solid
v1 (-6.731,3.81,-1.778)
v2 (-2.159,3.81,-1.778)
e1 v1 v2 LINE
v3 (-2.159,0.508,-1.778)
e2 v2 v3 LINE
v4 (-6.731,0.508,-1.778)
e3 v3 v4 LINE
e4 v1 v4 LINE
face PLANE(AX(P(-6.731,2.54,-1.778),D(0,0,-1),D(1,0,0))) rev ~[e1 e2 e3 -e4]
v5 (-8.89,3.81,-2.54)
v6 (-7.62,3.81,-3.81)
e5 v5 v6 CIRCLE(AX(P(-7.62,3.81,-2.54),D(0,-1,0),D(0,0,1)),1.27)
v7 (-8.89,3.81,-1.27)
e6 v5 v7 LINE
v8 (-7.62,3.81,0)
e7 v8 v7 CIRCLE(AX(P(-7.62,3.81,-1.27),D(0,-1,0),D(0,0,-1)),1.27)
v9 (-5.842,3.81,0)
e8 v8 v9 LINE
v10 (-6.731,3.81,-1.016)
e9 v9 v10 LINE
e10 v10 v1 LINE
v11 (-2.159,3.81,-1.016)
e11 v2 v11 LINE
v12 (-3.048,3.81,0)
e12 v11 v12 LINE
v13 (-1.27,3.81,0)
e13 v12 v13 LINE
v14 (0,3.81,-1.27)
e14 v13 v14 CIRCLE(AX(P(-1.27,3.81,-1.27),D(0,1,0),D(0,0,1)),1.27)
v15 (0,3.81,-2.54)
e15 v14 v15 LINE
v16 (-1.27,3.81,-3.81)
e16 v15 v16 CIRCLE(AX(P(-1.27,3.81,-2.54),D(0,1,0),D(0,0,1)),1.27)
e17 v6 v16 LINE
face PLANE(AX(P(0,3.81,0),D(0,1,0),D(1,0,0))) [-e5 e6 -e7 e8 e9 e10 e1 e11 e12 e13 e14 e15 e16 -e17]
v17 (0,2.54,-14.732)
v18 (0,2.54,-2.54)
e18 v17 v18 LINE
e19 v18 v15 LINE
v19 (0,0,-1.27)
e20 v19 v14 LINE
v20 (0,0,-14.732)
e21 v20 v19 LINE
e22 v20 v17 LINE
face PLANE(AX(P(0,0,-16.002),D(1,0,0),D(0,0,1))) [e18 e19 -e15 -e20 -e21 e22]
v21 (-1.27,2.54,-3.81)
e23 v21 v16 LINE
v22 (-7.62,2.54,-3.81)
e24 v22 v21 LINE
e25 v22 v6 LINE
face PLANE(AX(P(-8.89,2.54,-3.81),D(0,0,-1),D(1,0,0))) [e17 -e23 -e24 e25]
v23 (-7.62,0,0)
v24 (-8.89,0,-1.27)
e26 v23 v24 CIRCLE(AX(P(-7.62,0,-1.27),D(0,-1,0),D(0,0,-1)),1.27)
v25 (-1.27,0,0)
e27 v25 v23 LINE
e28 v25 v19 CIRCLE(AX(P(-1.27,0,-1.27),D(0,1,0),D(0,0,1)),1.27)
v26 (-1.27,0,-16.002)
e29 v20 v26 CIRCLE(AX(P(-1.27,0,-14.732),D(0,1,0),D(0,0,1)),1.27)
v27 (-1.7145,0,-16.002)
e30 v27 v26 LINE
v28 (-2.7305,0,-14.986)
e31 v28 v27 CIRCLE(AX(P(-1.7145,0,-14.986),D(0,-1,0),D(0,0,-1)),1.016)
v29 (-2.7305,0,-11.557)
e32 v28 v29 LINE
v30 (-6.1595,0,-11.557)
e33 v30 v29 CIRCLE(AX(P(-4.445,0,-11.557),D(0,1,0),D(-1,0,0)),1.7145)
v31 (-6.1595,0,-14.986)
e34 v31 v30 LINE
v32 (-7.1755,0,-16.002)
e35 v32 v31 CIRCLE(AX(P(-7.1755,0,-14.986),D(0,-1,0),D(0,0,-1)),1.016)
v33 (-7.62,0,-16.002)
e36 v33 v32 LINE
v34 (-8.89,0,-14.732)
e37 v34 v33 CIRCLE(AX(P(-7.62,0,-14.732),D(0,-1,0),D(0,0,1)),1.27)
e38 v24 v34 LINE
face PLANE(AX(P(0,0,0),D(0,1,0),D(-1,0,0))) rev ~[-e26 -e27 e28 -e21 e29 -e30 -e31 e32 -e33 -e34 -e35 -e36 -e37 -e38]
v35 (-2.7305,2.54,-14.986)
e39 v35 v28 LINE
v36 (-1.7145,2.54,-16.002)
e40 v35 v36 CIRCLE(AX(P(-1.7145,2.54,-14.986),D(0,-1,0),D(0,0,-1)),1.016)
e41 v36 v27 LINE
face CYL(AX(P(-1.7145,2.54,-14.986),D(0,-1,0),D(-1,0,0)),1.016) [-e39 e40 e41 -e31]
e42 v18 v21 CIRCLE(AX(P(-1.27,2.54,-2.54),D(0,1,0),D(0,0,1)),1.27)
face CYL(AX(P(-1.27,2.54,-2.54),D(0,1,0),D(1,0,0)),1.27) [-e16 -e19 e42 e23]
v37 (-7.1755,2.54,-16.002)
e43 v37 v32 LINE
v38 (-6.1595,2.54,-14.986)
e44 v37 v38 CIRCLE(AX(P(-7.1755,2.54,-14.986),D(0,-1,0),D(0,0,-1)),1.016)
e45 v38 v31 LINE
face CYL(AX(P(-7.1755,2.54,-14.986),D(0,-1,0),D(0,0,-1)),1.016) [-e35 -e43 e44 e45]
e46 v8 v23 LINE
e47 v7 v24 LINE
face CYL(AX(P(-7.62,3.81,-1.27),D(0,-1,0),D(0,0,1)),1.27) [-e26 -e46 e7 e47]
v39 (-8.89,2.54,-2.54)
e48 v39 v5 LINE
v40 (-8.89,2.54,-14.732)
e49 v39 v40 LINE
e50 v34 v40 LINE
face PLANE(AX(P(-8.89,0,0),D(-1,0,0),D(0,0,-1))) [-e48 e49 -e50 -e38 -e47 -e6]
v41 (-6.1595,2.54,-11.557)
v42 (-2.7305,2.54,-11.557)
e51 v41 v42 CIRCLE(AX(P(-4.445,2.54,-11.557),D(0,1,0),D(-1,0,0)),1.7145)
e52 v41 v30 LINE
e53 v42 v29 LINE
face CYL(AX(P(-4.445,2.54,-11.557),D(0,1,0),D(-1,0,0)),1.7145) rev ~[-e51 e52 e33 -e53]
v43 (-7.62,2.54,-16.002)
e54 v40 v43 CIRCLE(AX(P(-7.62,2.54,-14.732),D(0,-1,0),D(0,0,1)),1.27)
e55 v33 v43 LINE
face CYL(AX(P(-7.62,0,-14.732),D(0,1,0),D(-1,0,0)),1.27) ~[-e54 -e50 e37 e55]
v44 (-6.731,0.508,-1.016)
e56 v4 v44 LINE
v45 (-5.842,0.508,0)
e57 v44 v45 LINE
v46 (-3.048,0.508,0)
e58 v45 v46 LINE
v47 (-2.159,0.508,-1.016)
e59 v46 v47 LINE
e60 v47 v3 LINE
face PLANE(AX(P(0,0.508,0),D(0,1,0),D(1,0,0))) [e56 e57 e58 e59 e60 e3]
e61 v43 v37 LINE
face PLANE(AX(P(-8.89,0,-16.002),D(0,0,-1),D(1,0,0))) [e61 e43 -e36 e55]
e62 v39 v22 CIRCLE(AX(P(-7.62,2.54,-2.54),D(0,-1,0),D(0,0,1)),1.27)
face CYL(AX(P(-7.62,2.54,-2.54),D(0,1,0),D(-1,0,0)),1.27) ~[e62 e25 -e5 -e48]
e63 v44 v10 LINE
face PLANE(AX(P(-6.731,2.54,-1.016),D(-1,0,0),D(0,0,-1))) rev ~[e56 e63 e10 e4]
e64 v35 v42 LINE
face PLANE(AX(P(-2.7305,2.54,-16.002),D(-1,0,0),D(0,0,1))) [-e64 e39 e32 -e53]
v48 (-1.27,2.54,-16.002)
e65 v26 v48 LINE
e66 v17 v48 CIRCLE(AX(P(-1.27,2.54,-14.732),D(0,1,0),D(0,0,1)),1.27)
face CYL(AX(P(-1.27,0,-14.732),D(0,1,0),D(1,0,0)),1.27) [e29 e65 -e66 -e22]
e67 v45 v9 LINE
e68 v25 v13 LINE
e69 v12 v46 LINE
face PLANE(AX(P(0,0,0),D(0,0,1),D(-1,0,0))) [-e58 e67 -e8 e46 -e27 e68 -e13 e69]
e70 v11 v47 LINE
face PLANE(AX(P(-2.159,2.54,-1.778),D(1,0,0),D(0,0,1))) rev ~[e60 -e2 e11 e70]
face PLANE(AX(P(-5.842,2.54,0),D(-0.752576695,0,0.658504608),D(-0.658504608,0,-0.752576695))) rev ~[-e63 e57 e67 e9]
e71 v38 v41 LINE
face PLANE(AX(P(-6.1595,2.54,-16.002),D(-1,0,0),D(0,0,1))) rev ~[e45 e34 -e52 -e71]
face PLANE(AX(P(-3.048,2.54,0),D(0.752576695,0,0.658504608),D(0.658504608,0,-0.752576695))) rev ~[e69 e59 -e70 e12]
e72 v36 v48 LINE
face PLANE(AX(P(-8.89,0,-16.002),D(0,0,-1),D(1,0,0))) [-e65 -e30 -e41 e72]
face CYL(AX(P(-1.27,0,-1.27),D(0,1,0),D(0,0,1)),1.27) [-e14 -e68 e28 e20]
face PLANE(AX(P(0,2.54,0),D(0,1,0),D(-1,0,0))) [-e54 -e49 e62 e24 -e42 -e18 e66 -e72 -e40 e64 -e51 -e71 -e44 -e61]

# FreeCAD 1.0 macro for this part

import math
import FreeCAD as App
import Part
import Sketcher
from FreeCAD import Vector
Q = App.Units.Quantity


def edges_at(feature, points):
    """Names of the edges that pass closest to the given points."""
    edges = feature.Shape.Edges
    near = lambda p: min(range(len(edges)), key=lambda i: edges[i].distToShape(Part.Vertex(*p))[0])
    return sorted({f"Edge{near(p) + 1}" for p in points})

doc = App.newDocument("Part")
body = doc.addObject("PartDesign::Body", "Body")

# Sketch on XZ plane
sketch1 = doc.addObject("Sketcher::SketchObject", "Sketch")
body.addObject(sketch1)
sketch1.AttachmentSupport = (doc.XZ_Plane, [""])
sketch1.MapMode = "FlatFace"
sketch1.addGeometry([
    Part.LineSegment(Vector(-9, 0, 0), Vector(0, 0, 0)),
    Part.LineSegment(Vector(0, 0, 0), Vector(0, -16, 0)),
    Part.LineSegment(Vector(0, -16, 0), Vector(-9, -16, 0)),
    Part.LineSegment(Vector(-9, -16, 0), Vector(-9, 0, 0)),
], False)
sketch1.addConstraint([
    Sketcher.Constraint("Coincident", 0, 2, 1, 1),
    Sketcher.Constraint("Coincident", 1, 2, 2, 1),
    Sketcher.Constraint("Coincident", 2, 2, 3, 1),
    Sketcher.Constraint("Coincident", 3, 2, 0, 1),
    Sketcher.Constraint("Horizontal", 0),
    Sketcher.Constraint("Vertical", 1),
    Sketcher.Constraint("Horizontal", 2),
    Sketcher.Constraint("Vertical", 3),
    Sketcher.Constraint("Coincident", 0, 2, -1, 1),
    Sketcher.Constraint("DistanceX", 0, 1, 0, 2, Q("0.35 in")),
    Sketcher.Constraint("DistanceY", 1, 2, 1, 1, Q("0.63 in")),
])
pad1 = doc.addObject("PartDesign::Pad", "Pad")
body.addObject(pad1)
pad1.Profile = sketch1
pad1.Length = Q("0.1 in")
pad1.Reversed = True

# Sketch on XZ plane
sketch2 = doc.addObject("Sketcher::SketchObject", "Sketch001")
body.addObject(sketch2)
sketch2.AttachmentSupport = (doc.XZ_Plane, [""])
sketch2.MapMode = "FlatFace"
sketch2.AttachmentOffset = App.Placement(Vector(0, 0, -0.1 * 25.4), App.Rotation())
sketch2.addGeometry([
    Part.LineSegment(Vector(-8.9, -3.8, 0), Vector(-8.9, 0, 0)),  # 0
    Part.LineSegment(Vector(-8.9, 0, 0), Vector(-5.8, 0, 0)),  # 1
    Part.LineSegment(Vector(-5.8, 0, 0), Vector(-6.7, -1, 0)),  # 2
    Part.LineSegment(Vector(-6.7, -1, 0), Vector(-6.7, -1.8, 0)),  # 3
    Part.LineSegment(Vector(-6.7, -1.8, 0), Vector(-2.2, -1.8, 0)),  # 4
    Part.LineSegment(Vector(-2.2, -1.8, 0), Vector(-2.2, -1, 0)),  # 5
    Part.LineSegment(Vector(-2.2, -1, 0), Vector(-3, 0, 0)),  # 6
    Part.LineSegment(Vector(-3, 0, 0), Vector(0, 0, 0)),  # 7
    Part.LineSegment(Vector(0, 0, 0), Vector(0, -3.8, 0)),  # 8
    Part.LineSegment(Vector(0, -3.8, 0), Vector(-8.9, -3.8, 0)),  # 9
], False)
sketch2.addConstraint([
    Sketcher.Constraint("Coincident", 0, 2, 1, 1),
    Sketcher.Constraint("Coincident", 1, 2, 2, 1),
    Sketcher.Constraint("Coincident", 2, 2, 3, 1),
    Sketcher.Constraint("Coincident", 3, 2, 4, 1),
    Sketcher.Constraint("Coincident", 4, 2, 5, 1),
    Sketcher.Constraint("Coincident", 5, 2, 6, 1),
    Sketcher.Constraint("Coincident", 6, 2, 7, 1),
    Sketcher.Constraint("Coincident", 7, 2, 8, 1),
    Sketcher.Constraint("Coincident", 8, 2, 9, 1),
    Sketcher.Constraint("Coincident", 9, 2, 0, 1),
    Sketcher.Constraint("Vertical", 0),
    Sketcher.Constraint("Horizontal", 1),
    Sketcher.Constraint("Vertical", 3),
    Sketcher.Constraint("Horizontal", 4),
    Sketcher.Constraint("Vertical", 5),
    Sketcher.Constraint("Horizontal", 7),
    Sketcher.Constraint("Vertical", 8),
    Sketcher.Constraint("Horizontal", 9),
    Sketcher.Constraint("Coincident", 7, 2, -1, 1),
    Sketcher.Constraint("PointOnObject", 0, 2, -1),
    Sketcher.Constraint("Horizontal", 2, 2, 5, 2),
    Sketcher.Constraint("Equal", 1, 7),
    Sketcher.Constraint("Equal", 2, 6),
    Sketcher.Constraint("DistanceX", 4, 1, 4, 2, Q("0.18 in")),
    Sketcher.Constraint("DistanceY", 0, 1, 0, 2, Q("0.15 in")),
    Sketcher.Constraint("DistanceY", 2, 2, -1, 1, Q("0.04 in")),
    Sketcher.Constraint("DistanceY", 3, 2, -1, 1, Q("0.07 in")),
    Sketcher.Constraint("DistanceX", 1, 2, 6, 2, Q("0.11 in")),
    Sketcher.Constraint("DistanceX", 1, 1, 1, 2, Q("0.12 in")),
])
pad2 = doc.addObject("PartDesign::Pad", "Pad001")
body.addObject(pad2)
pad2.Profile = sketch2
pad2.Length = Q("0.05 in")
pad2.Reversed = True

# Sketch on XZ plane
sketch3 = doc.addObject("Sketcher::SketchObject", "Sketch002")
body.addObject(sketch3)
sketch3.AttachmentSupport = (doc.XZ_Plane, [""])
sketch3.MapMode = "FlatFace"
sketch3.AttachmentOffset = App.Placement(Vector(0, 0, -0.1 * 25.4), App.Rotation())
sketch3.addGeometry([
    Part.LineSegment(Vector(-5.8, 0, 0), Vector(-3, 0, 0)),  # 0
    Part.LineSegment(Vector(-3, 0, 0), Vector(-2.2, -1, 0)),  # 1
    Part.LineSegment(Vector(-2.2, -1, 0), Vector(-2.2, -1.8, 0)),  # 2
    Part.LineSegment(Vector(-2.2, -1.8, 0), Vector(-6.7, -1.8, 0)),  # 3
    Part.LineSegment(Vector(-6.7, -1.8, 0), Vector(-6.7, -1, 0)),  # 4
    Part.LineSegment(Vector(-6.7, -1, 0), Vector(-5.8, 0, 0)),  # 5
], False)
sketch3.addConstraint([
    Sketcher.Constraint("Coincident", 0, 2, 1, 1),
    Sketcher.Constraint("Coincident", 1, 2, 2, 1),
    Sketcher.Constraint("Coincident", 2, 2, 3, 1),
    Sketcher.Constraint("Coincident", 3, 2, 4, 1),
    Sketcher.Constraint("Coincident", 4, 2, 5, 1),
    Sketcher.Constraint("Coincident", 5, 2, 0, 1),
    Sketcher.Constraint("Horizontal", 0),
    Sketcher.Constraint("Vertical", 2),
    Sketcher.Constraint("Horizontal", 3),
    Sketcher.Constraint("Vertical", 4),
    Sketcher.Constraint("PointOnObject", 0, 2, -1),
    Sketcher.Constraint("Horizontal", 1, 2, 4, 2),
    Sketcher.Constraint("Equal", 1, 5),
    Sketcher.Constraint("DistanceX", 0, 1, 0, 2, Q("0.11 in")),
    Sketcher.Constraint("DistanceX", 3, 2, 3, 1, Q("0.18 in")),
    Sketcher.Constraint("DistanceY", 2, 2, 2, 1, Q("0.03 in")),
    Sketcher.Constraint("DistanceX", 0, 2, -1, 1, Q("0.12 in")),
    Sketcher.Constraint("DistanceY", 1, 2, -1, 1, Q("0.04 in")),
])
pocket1 = doc.addObject("PartDesign::Pocket", "Pocket")
body.addObject(pocket1)
pocket1.Profile = sketch3
pocket1.Length = Q("0.08 in")
pocket1.Reversed = True
doc.recompute()

fillet = doc.addObject("PartDesign::Fillet", "Fillet")
body.addObject(fillet)
fillet.Base = (pocket1, edges_at(pocket1, [
    (-8.89, 1.27, -16.002),
    (0, 1.27, -16.002),
    (-8.89, 1.905, 0),
    (-8.89, 3.175, -3.81),
    (0, 3.175, -3.81),
    (0, 1.905, 0),
]))
fillet.Radius = Q("0.05 in")

# Sketch on XZ plane
sketch4 = doc.addObject("Sketcher::SketchObject", "Sketch003")
body.addObject(sketch4)
sketch4.AttachmentSupport = (doc.XZ_Plane, [""])
sketch4.MapMode = "FlatFace"
sketch4.AttachmentOffset = App.Placement(Vector(0, 0, -0.1 * 25.4), App.Rotation())
sketch4.addGeometry([
    Part.LineSegment(Vector(-2.7, -16, 0), Vector(-6.2, -16, 0)),
    Part.LineSegment(Vector(-6.2, -16, 0), Vector(-6.2, -11.6, 0)),
    Part.ArcOfCircle(Part.Circle(Vector(-4.4, -11.6, 0), Vector(0, 0, 1), 1.7), math.radians(0), math.radians(180)),
    Part.LineSegment(Vector(-2.7, -11.6, 0), Vector(-2.7, -16, 0)),
], False)
sketch4.addConstraint([
    Sketcher.Constraint("Coincident", 0, 2, 1, 1),
    Sketcher.Constraint("Tangent", 1, 2, 2, 2),
    Sketcher.Constraint("Tangent", 2, 1, 3, 1),
    Sketcher.Constraint("Coincident", 3, 2, 0, 1),
    Sketcher.Constraint("Horizontal", 0),
    Sketcher.Constraint("Vertical", 1),
    Sketcher.Constraint("Vertical", 3),
    Sketcher.Constraint("Radius", 2, Q("0.0675 in")),
    Sketcher.Constraint("DistanceY", 1, 1, 1, 2, Q("0.175 in")),
    Sketcher.Constraint("DistanceX", 2, 3, -1, 1, Q("0.175 in")),
    Sketcher.Constraint("DistanceY", 0, 2, -1, 1, Q("0.63 in")),
])
pocket2 = doc.addObject("PartDesign::Pocket", "Pocket001")
body.addObject(pocket2)
pocket2.Profile = sketch4
pocket2.Length = Q("1 in")
pocket2.Reversed = True
doc.recompute()

fillet2 = doc.addObject("PartDesign::Fillet", "Fillet001")
body.addObject(fillet2)
fillet2.Base = (pocket2, edges_at(pocket2, [(-2.731, 1.27, -16.002), (-6.16, 1.27, -16.002)]))
fillet2.Radius = Q("0.04 in")

doc.recompute()
